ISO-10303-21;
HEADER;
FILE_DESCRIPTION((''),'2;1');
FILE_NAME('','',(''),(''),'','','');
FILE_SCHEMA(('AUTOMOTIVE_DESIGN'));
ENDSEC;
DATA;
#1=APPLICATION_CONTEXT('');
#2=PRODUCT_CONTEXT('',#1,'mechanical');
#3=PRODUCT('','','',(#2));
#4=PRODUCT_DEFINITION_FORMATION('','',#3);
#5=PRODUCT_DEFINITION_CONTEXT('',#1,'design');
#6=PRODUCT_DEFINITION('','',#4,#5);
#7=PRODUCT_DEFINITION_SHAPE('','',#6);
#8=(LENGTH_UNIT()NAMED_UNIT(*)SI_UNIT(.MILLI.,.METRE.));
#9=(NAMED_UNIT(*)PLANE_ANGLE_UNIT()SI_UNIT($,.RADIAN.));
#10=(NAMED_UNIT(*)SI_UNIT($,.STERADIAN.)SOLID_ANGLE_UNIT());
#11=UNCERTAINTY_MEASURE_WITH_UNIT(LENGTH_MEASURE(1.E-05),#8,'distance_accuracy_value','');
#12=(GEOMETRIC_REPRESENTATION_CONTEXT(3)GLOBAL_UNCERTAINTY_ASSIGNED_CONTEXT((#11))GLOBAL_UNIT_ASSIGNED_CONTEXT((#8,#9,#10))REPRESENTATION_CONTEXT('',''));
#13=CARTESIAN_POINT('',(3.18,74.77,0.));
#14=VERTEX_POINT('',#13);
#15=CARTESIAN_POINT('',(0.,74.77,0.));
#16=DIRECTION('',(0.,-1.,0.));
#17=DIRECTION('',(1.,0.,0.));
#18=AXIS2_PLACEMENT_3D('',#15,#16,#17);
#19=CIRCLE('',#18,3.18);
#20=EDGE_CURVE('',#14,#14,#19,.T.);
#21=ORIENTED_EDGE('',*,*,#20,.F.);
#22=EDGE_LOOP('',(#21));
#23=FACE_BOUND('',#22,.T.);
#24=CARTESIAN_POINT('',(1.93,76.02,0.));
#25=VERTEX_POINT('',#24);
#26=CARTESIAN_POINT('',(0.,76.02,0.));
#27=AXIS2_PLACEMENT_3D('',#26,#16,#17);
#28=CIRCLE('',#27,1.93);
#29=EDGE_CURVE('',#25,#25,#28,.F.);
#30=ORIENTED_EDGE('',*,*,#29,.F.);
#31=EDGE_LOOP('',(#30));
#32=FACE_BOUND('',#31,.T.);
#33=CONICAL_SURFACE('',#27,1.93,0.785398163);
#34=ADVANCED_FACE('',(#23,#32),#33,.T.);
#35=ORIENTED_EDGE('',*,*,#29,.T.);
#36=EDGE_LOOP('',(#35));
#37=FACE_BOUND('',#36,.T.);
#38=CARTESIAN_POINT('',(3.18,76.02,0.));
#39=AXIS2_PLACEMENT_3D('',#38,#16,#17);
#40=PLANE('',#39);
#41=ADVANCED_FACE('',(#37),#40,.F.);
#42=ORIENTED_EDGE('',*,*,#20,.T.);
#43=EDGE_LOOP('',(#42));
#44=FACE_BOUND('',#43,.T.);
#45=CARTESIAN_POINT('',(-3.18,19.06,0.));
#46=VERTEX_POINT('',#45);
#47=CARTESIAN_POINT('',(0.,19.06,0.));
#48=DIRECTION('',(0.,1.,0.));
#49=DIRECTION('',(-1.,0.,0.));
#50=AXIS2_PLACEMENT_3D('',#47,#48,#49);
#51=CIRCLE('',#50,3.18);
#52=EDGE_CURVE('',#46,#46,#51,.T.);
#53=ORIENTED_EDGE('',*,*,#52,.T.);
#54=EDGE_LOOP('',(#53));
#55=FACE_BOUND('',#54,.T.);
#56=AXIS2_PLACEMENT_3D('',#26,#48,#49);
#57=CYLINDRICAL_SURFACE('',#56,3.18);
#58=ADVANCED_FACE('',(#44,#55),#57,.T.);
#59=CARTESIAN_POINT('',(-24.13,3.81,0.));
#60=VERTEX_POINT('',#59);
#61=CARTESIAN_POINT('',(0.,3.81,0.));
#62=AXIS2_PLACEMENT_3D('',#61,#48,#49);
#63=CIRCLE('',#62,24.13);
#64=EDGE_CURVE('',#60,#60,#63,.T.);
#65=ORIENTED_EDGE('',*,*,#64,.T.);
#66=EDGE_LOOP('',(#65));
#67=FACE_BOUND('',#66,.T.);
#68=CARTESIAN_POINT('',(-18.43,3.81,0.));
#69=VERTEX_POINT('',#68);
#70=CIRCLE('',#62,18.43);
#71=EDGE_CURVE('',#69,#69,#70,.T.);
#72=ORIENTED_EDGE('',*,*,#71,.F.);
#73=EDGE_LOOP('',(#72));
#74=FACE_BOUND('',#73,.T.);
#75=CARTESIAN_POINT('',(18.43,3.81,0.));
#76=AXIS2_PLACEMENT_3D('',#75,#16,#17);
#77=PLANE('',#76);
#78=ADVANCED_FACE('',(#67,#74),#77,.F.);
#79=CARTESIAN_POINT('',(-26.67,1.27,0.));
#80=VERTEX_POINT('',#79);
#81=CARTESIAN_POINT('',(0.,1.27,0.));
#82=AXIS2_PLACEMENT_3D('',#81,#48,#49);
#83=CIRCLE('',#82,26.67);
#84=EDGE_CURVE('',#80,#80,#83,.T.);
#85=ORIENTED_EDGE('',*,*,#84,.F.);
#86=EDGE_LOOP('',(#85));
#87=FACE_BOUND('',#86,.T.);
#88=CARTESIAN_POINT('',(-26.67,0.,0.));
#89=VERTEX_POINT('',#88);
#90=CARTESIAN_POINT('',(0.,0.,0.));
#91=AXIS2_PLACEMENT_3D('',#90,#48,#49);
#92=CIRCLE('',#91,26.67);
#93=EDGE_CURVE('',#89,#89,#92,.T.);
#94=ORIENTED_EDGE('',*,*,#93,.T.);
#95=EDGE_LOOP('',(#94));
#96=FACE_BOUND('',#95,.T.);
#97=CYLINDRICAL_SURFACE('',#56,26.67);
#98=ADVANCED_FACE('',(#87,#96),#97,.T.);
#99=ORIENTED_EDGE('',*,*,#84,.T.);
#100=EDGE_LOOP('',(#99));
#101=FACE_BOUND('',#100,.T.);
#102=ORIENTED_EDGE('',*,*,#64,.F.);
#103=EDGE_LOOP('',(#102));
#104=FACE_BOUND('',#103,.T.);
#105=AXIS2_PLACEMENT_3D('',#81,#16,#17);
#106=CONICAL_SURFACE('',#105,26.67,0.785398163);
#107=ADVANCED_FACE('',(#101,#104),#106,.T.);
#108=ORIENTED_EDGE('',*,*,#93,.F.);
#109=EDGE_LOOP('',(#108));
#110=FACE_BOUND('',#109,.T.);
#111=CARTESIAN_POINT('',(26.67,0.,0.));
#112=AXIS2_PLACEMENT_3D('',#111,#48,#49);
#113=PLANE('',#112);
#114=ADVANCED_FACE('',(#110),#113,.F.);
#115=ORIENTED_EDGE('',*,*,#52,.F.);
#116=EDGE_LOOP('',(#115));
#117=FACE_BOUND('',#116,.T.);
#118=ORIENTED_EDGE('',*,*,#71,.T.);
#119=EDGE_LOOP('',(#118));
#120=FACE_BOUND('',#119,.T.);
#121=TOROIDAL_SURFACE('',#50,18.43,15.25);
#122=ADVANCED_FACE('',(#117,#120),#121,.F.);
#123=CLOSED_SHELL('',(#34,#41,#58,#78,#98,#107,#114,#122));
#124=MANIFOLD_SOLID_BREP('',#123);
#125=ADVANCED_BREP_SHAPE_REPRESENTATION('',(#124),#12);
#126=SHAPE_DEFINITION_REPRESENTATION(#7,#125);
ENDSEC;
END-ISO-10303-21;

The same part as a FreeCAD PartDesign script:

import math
import FreeCAD as App
import Part
import Sketcher

V = App.Vector
Q = App.Units.Quantity


def edges_at(feature, points):
    """Names of the edges that pass closest to the given points."""
    edges = feature.Shape.Edges
    near = lambda p: min(range(len(edges)), key=lambda i: edges[i].distToShape(Part.Vertex(*p))[0])
    return sorted({f"Edge{near(p) + 1}" for p in points})

doc = App.newDocument("Part")
body = doc.addObject("PartDesign::Body", "Body")

# Sketch on XY plane
sketch1 = body.newObject("Sketcher::SketchObject", "Sketch")
sketch1.AttachmentSupport = (doc.getObject("XY_Plane"), [""])
sketch1.MapMode = "FlatFace"
sketch1.addGeometry(Part.LineSegment(V(26.7, 1.3, 0), V(24.1, 3.8, 0)), False)
sketch1.addGeometry(Part.LineSegment(V(24.1, 3.8, 0), V(18.4, 3.8, 0)), False)
sketch1.addGeometry(Part.ArcOfCircle(Part.Circle(V(18.4, 19.1, 0), V(0, 0, 1), 15.2), math.radians(180), math.radians(270)), False)
sketch1.addGeometry(Part.LineSegment(V(3.2, 19.1, 0), V(3.2, 76, 0)), False)
sketch1.addGeometry(Part.LineSegment(V(3.2, 76, 0), V(0, 76, 0)), False)
sketch1.addGeometry(Part.LineSegment(V(0, 76, 0), V(0, 0, 0)), False)
sketch1.addGeometry(Part.LineSegment(V(0, 0, 0), V(26.7, 0, 0)), False)
sketch1.addGeometry(Part.LineSegment(V(26.7, 0, 0), V(26.7, 1.3, 0)), False)
sketch1.addConstraint(Sketcher.Constraint("Coincident", 0, 2, 1, 1))
sketch1.addConstraint(Sketcher.Constraint("Tangent", 1, 2, 2, 2))
sketch1.addConstraint(Sketcher.Constraint("Tangent", 2, 1, 3, 1))
sketch1.addConstraint(Sketcher.Constraint("Coincident", 3, 2, 4, 1))
sketch1.addConstraint(Sketcher.Constraint("Coincident", 4, 2, 5, 1))
sketch1.addConstraint(Sketcher.Constraint("Coincident", 5, 2, 6, 1))
sketch1.addConstraint(Sketcher.Constraint("Coincident", 6, 2, 7, 1))
sketch1.addConstraint(Sketcher.Constraint("Coincident", 7, 2, 0, 1))
sketch1.addConstraint(Sketcher.Constraint("Horizontal", 1))
sketch1.addConstraint(Sketcher.Constraint("Vertical", 3))
sketch1.addConstraint(Sketcher.Constraint("Horizontal", 4))
sketch1.addConstraint(Sketcher.Constraint("Vertical", 5))
sketch1.addConstraint(Sketcher.Constraint("Horizontal", 6))
sketch1.addConstraint(Sketcher.Constraint("Vertical", 7))
sketch1.addConstraint(Sketcher.Constraint("Coincident", 5, 2, -1, 1))
sketch1.addConstraint(Sketcher.Constraint("Angle", 0, Q("135 deg")))
sketch1.addConstraint(Sketcher.Constraint("Radius", 2, Q("15.25 mm")))
sketch1.addConstraint(Sketcher.Constraint("DistanceX", 1, 2, 1, 1, Q("5.7 mm")))
sketch1.addConstraint(Sketcher.Constraint("DistanceX", 4, 2, 4, 1, Q("3.18 mm")))
sketch1.addConstraint(Sketcher.Constraint("DistanceX", 6, 1, 6, 2, Q("26.67 mm")))
sketch1.addConstraint(Sketcher.Constraint("DistanceY", 3, 1, 3, 2, Q("56.96 mm")))
sketch1.addConstraint(Sketcher.Constraint("DistanceY", 5, 2, 5, 1, Q("76.02 mm")))
revolution = body.newObject("PartDesign::Revolution", "Revolution")
revolution.Profile = sketch1
revolution.ReferenceAxis = (sketch1, ["V_Axis"])
revolution.Angle = 360
doc.recompute()

chamfer = body.newObject("PartDesign::Chamfer", "Chamfer")
chamfer.Base = (revolution, edges_at(revolution, [(3.18, 76.02, 0)]))
chamfer.Size = 1.25

doc.recompute()
